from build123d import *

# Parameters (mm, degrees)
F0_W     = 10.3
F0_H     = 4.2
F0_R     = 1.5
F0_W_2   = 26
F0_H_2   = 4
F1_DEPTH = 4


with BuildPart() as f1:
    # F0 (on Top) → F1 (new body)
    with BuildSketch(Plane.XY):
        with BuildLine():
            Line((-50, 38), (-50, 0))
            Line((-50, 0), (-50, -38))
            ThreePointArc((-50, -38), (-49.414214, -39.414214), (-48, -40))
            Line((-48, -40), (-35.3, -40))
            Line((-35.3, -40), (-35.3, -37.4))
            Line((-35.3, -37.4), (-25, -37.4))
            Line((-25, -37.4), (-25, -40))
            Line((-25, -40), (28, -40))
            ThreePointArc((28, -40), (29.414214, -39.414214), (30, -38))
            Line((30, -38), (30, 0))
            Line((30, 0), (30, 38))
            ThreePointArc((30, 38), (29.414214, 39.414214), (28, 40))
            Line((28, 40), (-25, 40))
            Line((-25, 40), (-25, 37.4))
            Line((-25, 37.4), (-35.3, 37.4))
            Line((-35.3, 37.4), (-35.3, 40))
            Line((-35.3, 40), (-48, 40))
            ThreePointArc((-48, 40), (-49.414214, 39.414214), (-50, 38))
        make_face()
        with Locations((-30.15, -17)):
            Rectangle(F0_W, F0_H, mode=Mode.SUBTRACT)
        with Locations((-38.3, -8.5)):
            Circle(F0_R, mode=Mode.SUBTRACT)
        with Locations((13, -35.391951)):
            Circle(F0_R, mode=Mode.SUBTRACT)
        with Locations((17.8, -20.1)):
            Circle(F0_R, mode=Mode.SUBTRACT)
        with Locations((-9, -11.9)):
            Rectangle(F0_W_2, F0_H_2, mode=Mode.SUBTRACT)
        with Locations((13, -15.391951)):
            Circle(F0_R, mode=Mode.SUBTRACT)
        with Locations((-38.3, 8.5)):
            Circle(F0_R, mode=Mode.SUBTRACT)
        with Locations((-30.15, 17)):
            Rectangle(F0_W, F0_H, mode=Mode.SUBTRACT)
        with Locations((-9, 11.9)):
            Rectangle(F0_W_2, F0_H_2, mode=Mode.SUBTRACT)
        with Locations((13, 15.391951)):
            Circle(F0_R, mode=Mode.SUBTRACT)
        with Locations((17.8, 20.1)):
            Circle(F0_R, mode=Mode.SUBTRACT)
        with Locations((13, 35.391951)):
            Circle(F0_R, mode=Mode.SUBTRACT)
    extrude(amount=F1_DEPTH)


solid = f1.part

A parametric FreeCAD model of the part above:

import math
import FreeCAD as App
import Part
import Sketcher
from FreeCAD import Vector


def add_polygon(sketch, points):
    """Adds a closed chain of lines whose ends are joined by coincident constraints."""
    first, n = sketch.GeometryCount, len(points)
    for a, b in zip(points, points[1:] + points[:1]):
        sketch.addGeometry(Part.LineSegment(App.Vector(*a, 0), App.Vector(*b, 0)), False)
    for i in range(n):
        sketch.addConstraint(Sketcher.Constraint("Coincident", first + i, 2, first + (i + 1) % n, 1))

doc = App.newDocument("Part")
body = doc.addObject("PartDesign::Body", "Body")

# Sketch on XY plane
sketch1 = doc.addObject("Sketcher::SketchObject", "Sketch")
body.addObject(sketch1)
sketch1.AttachmentSupport = (doc.XY_Plane, [""])
sketch1.MapMode = "FlatFace"
sketch1.addGeometry(Part.LineSegment(Vector(-50, 38, 0), Vector(-50, -38, 0)), False)  # 0
sketch1.addGeometry(Part.ArcOfCircle(Part.Circle(Vector(-48, -38, 0), Vector(0, 0, 1), 2), math.radians(180), math.radians(270)), False)  # 1
sketch1.addGeometry(Part.LineSegment(Vector(-48, -40, 0), Vector(-35.3, -40, 0)), False)  # 2
sketch1.addGeometry(Part.LineSegment(Vector(-35.3, -40, 0), Vector(-35.3, -37.4, 0)), False)  # 3
sketch1.addGeometry(Part.LineSegment(Vector(-35.3, -37.4, 0), Vector(-25, -37.4, 0)), False)  # 4
sketch1.addGeometry(Part.LineSegment(Vector(-25, -37.4, 0), Vector(-25, -40, 0)), False)  # 5
sketch1.addGeometry(Part.LineSegment(Vector(-25, -40, 0), Vector(28, -40, 0)), False)  # 6
sketch1.addGeometry(Part.ArcOfCircle(Part.Circle(Vector(28, -38, 0), Vector(0, 0, 1), 2), math.radians(-90), math.radians(0)), False)  # 7
sketch1.addGeometry(Part.LineSegment(Vector(30, -38, 0), Vector(30, 38, 0)), False)  # 8
sketch1.addGeometry(Part.ArcOfCircle(Part.Circle(Vector(28, 38, 0), Vector(0, 0, 1), 2), math.radians(0), math.radians(90)), False)  # 9
sketch1.addGeometry(Part.LineSegment(Vector(28, 40, 0), Vector(-25, 40, 0)), False)  # 10
sketch1.addGeometry(Part.LineSegment(Vector(-25, 40, 0), Vector(-25, 37.4, 0)), False)  # 11
sketch1.addGeometry(Part.LineSegment(Vector(-25, 37.4, 0), Vector(-35.3, 37.4, 0)), False)  # 12
sketch1.addGeometry(Part.LineSegment(Vector(-35.3, 37.4, 0), Vector(-35.3, 40, 0)), False)  # 13
sketch1.addGeometry(Part.LineSegment(Vector(-35.3, 40, 0), Vector(-48, 40, 0)), False)  # 14
sketch1.addGeometry(Part.ArcOfCircle(Part.Circle(Vector(-48, 38, 0), Vector(0, 0, 1), 2), math.radians(90), math.radians(180)), False)  # 15
add_polygon(sketch1, [(-25, -19.1), (-35.3, -19.1), (-35.3, -14.9), (-25, -14.9)])  # lines 16-19
sketch1.addGeometry(Part.Circle(Vector(-38.3, -8.5, 0), Vector(0, 0, 1), 1.5), False)  # 20
sketch1.addGeometry(Part.Circle(Vector(13, -35.4, 0), Vector(0, 0, 1), 1.5), False)  # 21
sketch1.addGeometry(Part.Circle(Vector(17.8, -20.1, 0), Vector(0, 0, 1), 1.5), False)  # 22
add_polygon(sketch1, [(4, -13.9), (-22, -13.9), (-22, -9.9), (4, -9.9)])  # lines 23-26
sketch1.addGeometry(Part.Circle(Vector(13, -15.4, 0), Vector(0, 0, 1), 1.5), False)  # 27
sketch1.addGeometry(Part.Circle(Vector(-38.3, 8.5, 0), Vector(0, 0, 1), 1.5), False)  # 28
add_polygon(sketch1, [(-25, 14.9), (-35.3, 14.9), (-35.3, 19.1), (-25, 19.1)])  # lines 29-32
add_polygon(sketch1, [(4, 9.9), (-22, 9.9), (-22, 13.9), (4, 13.9)])  # lines 33-36
sketch1.addGeometry(Part.Circle(Vector(13, 15.4, 0), Vector(0, 0, 1), 1.5), False)  # 37
sketch1.addGeometry(Part.Circle(Vector(17.8, 20.1, 0), Vector(0, 0, 1), 1.5), False)  # 38
sketch1.addGeometry(Part.Circle(Vector(13, 35.4, 0), Vector(0, 0, 1), 1.5), False)  # 39
sketch1.addConstraint([
    Sketcher.Constraint("Tangent", 0, 2, 1, 1),
    Sketcher.Constraint("Tangent", 1, 2, 2, 1),
    Sketcher.Constraint("Coincident", 2, 2, 3, 1),
    Sketcher.Constraint("Coincident", 3, 2, 4, 1),
    Sketcher.Constraint("Coincident", 4, 2, 5, 1),
    Sketcher.Constraint("Coincident", 5, 2, 6, 1),
    Sketcher.Constraint("Tangent", 6, 2, 7, 1),
    Sketcher.Constraint("Tangent", 7, 2, 8, 1),
    Sketcher.Constraint("Tangent", 8, 2, 9, 1),
    Sketcher.Constraint("Tangent", 9, 2, 10, 1),
    Sketcher.Constraint("Coincident", 10, 2, 11, 1),
    Sketcher.Constraint("Coincident", 11, 2, 12, 1),
    Sketcher.Constraint("Coincident", 12, 2, 13, 1),
    Sketcher.Constraint("Coincident", 13, 2, 14, 1),
    Sketcher.Constraint("Tangent", 14, 2, 15, 1),
    Sketcher.Constraint("Tangent", 15, 2, 0, 1),
    Sketcher.Constraint("Vertical", 0),
    Sketcher.Constraint("Horizontal", 2),
    Sketcher.Constraint("Vertical", 3),
    Sketcher.Constraint("Horizontal", 4),
    Sketcher.Constraint("Vertical", 5),
    Sketcher.Constraint("Horizontal", 6),
    Sketcher.Constraint("Vertical", 8),
    Sketcher.Constraint("Horizontal", 10),
    Sketcher.Constraint("Vertical", 11),
    Sketcher.Constraint("Horizontal", 12),
    Sketcher.Constraint("Vertical", 13),
    Sketcher.Constraint("Horizontal", 14),
    Sketcher.Constraint("Horizontal", 16),
    Sketcher.Constraint("Vertical", 17),
    Sketcher.Constraint("Horizontal", 18),
    Sketcher.Constraint("Vertical", 19),
    Sketcher.Constraint("Horizontal", 23),
    Sketcher.Constraint("Vertical", 24),
    Sketcher.Constraint("Horizontal", 25),
    Sketcher.Constraint("Vertical", 26),
    Sketcher.Constraint("Horizontal", 29),
    Sketcher.Constraint("Vertical", 30),
    Sketcher.Constraint("Horizontal", 31),
    Sketcher.Constraint("Vertical", 32),
    Sketcher.Constraint("Horizontal", 33),
    Sketcher.Constraint("Vertical", 34),
    Sketcher.Constraint("Horizontal", 35),
    Sketcher.Constraint("Vertical", 36),
    Sketcher.Constraint("Equal", 1, 7),
    Sketcher.Constraint("Equal", 7, 9),
    Sketcher.Constraint("Equal", 9, 15),
    Sketcher.Constraint("Equal", 20, 21),
    Sketcher.Constraint("Equal", 21, 22),
    Sketcher.Constraint("Equal", 22, 27),
    Sketcher.Constraint("Equal", 27, 28),
    Sketcher.Constraint("Equal", 28, 37),
    Sketcher.Constraint("Equal", 37, 38),
    Sketcher.Constraint("Equal", 38, 39),
    Sketcher.Constraint("Symmetric", 20, 3, 28, 3, -1),
    Sketcher.Constraint("Symmetric", 27, 3, 37, 3, -1),
    Sketcher.Constraint("Symmetric", 22, 3, 38, 3, -1),
    Sketcher.Constraint("Symmetric", 21, 3, 39, 3, -1),
    Sketcher.Constraint("Symmetric", 5, 2, 10, 2, -1),
    Sketcher.Constraint("Symmetric", 3, 2, 12, 2, -1),
    Sketcher.Constraint("Symmetric", 17, 2, 29, 2, -1),
    Sketcher.Constraint("Symmetric", 19, 2, 31, 2, -1),
    Sketcher.Constraint("Symmetric", 24, 2, 33, 2, -1),
    Sketcher.Constraint("Symmetric", 26, 2, 35, 2, -1),
    Sketcher.Constraint("Horizontal", 1, 3, 7, 3),
    Sketcher.Constraint("Horizontal", 9, 3, 15, 3),
    Sketcher.Constraint("Vertical", 21, 3, 27, 3),
    Sketcher.Constraint("Vertical", 13, 2, 16, 2),
    Sketcher.Constraint("Vertical", 11, 2, 18, 2),
    Sketcher.Constraint("Diameter", 20, 3.0),
    Sketcher.Constraint("Radius", 1, 1.999999),
    Sketcher.Constraint("DistanceX", 6, 1, 6, 2, 53.0),
    Sketcher.Constraint("DistanceX", 23, 2, 23, 1, 26.0),
    Sketcher.Constraint("DistanceY", 0, 2, 0, 1, 76.0),
    Sketcher.Constraint("DistanceY", 24, 1, 24, 2, 4.0),
    Sketcher.Constraint("DistanceX", 2, 1, 2, 2, 12.7),
    Sketcher.Constraint("DistanceX", 4, 1, 4, 2, 10.3),
    Sketcher.Constraint("DistanceY", 3, 1, 3, 2, 2.6),
    Sketcher.Constraint("DistanceY", 17, 1, 17, 2, 4.2),
    Sketcher.Constraint("DistanceX", 1, 3, -1, 1, 48.000001),
    Sketcher.Constraint("DistanceX", -1, 1, 21, 3, 13.0),
    Sketcher.Constraint("DistanceX", 23, 2, -1, 1, 22.0),
    Sketcher.Constraint("DistanceY", 21, 3, 27, 3, 20.0),
    Sketcher.Constraint("DistanceY", 20, 3, 28, 3, 17.0),
    Sketcher.Constraint("DistanceX", 20, 3, 2, 2, 3.0),
    Sketcher.Constraint("DistanceY", 18, 2, 23, 2, 1.0),
    Sketcher.Constraint("DistanceX", -1, 1, 22, 3, 17.8),
    Sketcher.Constraint("DistanceY", 22, 3, -1, 1, 20.1),
    Sketcher.Constraint("DistanceY", 16, 2, -1, 1, 19.1),
    Sketcher.Constraint("DistanceY", 21, 3, 37, 3, 50.783902),
])
pad1 = doc.addObject("PartDesign::Pad", "Pad")
body.addObject(pad1)
pad1.Profile = sketch1
pad1.Length = 4

doc.recompute()
